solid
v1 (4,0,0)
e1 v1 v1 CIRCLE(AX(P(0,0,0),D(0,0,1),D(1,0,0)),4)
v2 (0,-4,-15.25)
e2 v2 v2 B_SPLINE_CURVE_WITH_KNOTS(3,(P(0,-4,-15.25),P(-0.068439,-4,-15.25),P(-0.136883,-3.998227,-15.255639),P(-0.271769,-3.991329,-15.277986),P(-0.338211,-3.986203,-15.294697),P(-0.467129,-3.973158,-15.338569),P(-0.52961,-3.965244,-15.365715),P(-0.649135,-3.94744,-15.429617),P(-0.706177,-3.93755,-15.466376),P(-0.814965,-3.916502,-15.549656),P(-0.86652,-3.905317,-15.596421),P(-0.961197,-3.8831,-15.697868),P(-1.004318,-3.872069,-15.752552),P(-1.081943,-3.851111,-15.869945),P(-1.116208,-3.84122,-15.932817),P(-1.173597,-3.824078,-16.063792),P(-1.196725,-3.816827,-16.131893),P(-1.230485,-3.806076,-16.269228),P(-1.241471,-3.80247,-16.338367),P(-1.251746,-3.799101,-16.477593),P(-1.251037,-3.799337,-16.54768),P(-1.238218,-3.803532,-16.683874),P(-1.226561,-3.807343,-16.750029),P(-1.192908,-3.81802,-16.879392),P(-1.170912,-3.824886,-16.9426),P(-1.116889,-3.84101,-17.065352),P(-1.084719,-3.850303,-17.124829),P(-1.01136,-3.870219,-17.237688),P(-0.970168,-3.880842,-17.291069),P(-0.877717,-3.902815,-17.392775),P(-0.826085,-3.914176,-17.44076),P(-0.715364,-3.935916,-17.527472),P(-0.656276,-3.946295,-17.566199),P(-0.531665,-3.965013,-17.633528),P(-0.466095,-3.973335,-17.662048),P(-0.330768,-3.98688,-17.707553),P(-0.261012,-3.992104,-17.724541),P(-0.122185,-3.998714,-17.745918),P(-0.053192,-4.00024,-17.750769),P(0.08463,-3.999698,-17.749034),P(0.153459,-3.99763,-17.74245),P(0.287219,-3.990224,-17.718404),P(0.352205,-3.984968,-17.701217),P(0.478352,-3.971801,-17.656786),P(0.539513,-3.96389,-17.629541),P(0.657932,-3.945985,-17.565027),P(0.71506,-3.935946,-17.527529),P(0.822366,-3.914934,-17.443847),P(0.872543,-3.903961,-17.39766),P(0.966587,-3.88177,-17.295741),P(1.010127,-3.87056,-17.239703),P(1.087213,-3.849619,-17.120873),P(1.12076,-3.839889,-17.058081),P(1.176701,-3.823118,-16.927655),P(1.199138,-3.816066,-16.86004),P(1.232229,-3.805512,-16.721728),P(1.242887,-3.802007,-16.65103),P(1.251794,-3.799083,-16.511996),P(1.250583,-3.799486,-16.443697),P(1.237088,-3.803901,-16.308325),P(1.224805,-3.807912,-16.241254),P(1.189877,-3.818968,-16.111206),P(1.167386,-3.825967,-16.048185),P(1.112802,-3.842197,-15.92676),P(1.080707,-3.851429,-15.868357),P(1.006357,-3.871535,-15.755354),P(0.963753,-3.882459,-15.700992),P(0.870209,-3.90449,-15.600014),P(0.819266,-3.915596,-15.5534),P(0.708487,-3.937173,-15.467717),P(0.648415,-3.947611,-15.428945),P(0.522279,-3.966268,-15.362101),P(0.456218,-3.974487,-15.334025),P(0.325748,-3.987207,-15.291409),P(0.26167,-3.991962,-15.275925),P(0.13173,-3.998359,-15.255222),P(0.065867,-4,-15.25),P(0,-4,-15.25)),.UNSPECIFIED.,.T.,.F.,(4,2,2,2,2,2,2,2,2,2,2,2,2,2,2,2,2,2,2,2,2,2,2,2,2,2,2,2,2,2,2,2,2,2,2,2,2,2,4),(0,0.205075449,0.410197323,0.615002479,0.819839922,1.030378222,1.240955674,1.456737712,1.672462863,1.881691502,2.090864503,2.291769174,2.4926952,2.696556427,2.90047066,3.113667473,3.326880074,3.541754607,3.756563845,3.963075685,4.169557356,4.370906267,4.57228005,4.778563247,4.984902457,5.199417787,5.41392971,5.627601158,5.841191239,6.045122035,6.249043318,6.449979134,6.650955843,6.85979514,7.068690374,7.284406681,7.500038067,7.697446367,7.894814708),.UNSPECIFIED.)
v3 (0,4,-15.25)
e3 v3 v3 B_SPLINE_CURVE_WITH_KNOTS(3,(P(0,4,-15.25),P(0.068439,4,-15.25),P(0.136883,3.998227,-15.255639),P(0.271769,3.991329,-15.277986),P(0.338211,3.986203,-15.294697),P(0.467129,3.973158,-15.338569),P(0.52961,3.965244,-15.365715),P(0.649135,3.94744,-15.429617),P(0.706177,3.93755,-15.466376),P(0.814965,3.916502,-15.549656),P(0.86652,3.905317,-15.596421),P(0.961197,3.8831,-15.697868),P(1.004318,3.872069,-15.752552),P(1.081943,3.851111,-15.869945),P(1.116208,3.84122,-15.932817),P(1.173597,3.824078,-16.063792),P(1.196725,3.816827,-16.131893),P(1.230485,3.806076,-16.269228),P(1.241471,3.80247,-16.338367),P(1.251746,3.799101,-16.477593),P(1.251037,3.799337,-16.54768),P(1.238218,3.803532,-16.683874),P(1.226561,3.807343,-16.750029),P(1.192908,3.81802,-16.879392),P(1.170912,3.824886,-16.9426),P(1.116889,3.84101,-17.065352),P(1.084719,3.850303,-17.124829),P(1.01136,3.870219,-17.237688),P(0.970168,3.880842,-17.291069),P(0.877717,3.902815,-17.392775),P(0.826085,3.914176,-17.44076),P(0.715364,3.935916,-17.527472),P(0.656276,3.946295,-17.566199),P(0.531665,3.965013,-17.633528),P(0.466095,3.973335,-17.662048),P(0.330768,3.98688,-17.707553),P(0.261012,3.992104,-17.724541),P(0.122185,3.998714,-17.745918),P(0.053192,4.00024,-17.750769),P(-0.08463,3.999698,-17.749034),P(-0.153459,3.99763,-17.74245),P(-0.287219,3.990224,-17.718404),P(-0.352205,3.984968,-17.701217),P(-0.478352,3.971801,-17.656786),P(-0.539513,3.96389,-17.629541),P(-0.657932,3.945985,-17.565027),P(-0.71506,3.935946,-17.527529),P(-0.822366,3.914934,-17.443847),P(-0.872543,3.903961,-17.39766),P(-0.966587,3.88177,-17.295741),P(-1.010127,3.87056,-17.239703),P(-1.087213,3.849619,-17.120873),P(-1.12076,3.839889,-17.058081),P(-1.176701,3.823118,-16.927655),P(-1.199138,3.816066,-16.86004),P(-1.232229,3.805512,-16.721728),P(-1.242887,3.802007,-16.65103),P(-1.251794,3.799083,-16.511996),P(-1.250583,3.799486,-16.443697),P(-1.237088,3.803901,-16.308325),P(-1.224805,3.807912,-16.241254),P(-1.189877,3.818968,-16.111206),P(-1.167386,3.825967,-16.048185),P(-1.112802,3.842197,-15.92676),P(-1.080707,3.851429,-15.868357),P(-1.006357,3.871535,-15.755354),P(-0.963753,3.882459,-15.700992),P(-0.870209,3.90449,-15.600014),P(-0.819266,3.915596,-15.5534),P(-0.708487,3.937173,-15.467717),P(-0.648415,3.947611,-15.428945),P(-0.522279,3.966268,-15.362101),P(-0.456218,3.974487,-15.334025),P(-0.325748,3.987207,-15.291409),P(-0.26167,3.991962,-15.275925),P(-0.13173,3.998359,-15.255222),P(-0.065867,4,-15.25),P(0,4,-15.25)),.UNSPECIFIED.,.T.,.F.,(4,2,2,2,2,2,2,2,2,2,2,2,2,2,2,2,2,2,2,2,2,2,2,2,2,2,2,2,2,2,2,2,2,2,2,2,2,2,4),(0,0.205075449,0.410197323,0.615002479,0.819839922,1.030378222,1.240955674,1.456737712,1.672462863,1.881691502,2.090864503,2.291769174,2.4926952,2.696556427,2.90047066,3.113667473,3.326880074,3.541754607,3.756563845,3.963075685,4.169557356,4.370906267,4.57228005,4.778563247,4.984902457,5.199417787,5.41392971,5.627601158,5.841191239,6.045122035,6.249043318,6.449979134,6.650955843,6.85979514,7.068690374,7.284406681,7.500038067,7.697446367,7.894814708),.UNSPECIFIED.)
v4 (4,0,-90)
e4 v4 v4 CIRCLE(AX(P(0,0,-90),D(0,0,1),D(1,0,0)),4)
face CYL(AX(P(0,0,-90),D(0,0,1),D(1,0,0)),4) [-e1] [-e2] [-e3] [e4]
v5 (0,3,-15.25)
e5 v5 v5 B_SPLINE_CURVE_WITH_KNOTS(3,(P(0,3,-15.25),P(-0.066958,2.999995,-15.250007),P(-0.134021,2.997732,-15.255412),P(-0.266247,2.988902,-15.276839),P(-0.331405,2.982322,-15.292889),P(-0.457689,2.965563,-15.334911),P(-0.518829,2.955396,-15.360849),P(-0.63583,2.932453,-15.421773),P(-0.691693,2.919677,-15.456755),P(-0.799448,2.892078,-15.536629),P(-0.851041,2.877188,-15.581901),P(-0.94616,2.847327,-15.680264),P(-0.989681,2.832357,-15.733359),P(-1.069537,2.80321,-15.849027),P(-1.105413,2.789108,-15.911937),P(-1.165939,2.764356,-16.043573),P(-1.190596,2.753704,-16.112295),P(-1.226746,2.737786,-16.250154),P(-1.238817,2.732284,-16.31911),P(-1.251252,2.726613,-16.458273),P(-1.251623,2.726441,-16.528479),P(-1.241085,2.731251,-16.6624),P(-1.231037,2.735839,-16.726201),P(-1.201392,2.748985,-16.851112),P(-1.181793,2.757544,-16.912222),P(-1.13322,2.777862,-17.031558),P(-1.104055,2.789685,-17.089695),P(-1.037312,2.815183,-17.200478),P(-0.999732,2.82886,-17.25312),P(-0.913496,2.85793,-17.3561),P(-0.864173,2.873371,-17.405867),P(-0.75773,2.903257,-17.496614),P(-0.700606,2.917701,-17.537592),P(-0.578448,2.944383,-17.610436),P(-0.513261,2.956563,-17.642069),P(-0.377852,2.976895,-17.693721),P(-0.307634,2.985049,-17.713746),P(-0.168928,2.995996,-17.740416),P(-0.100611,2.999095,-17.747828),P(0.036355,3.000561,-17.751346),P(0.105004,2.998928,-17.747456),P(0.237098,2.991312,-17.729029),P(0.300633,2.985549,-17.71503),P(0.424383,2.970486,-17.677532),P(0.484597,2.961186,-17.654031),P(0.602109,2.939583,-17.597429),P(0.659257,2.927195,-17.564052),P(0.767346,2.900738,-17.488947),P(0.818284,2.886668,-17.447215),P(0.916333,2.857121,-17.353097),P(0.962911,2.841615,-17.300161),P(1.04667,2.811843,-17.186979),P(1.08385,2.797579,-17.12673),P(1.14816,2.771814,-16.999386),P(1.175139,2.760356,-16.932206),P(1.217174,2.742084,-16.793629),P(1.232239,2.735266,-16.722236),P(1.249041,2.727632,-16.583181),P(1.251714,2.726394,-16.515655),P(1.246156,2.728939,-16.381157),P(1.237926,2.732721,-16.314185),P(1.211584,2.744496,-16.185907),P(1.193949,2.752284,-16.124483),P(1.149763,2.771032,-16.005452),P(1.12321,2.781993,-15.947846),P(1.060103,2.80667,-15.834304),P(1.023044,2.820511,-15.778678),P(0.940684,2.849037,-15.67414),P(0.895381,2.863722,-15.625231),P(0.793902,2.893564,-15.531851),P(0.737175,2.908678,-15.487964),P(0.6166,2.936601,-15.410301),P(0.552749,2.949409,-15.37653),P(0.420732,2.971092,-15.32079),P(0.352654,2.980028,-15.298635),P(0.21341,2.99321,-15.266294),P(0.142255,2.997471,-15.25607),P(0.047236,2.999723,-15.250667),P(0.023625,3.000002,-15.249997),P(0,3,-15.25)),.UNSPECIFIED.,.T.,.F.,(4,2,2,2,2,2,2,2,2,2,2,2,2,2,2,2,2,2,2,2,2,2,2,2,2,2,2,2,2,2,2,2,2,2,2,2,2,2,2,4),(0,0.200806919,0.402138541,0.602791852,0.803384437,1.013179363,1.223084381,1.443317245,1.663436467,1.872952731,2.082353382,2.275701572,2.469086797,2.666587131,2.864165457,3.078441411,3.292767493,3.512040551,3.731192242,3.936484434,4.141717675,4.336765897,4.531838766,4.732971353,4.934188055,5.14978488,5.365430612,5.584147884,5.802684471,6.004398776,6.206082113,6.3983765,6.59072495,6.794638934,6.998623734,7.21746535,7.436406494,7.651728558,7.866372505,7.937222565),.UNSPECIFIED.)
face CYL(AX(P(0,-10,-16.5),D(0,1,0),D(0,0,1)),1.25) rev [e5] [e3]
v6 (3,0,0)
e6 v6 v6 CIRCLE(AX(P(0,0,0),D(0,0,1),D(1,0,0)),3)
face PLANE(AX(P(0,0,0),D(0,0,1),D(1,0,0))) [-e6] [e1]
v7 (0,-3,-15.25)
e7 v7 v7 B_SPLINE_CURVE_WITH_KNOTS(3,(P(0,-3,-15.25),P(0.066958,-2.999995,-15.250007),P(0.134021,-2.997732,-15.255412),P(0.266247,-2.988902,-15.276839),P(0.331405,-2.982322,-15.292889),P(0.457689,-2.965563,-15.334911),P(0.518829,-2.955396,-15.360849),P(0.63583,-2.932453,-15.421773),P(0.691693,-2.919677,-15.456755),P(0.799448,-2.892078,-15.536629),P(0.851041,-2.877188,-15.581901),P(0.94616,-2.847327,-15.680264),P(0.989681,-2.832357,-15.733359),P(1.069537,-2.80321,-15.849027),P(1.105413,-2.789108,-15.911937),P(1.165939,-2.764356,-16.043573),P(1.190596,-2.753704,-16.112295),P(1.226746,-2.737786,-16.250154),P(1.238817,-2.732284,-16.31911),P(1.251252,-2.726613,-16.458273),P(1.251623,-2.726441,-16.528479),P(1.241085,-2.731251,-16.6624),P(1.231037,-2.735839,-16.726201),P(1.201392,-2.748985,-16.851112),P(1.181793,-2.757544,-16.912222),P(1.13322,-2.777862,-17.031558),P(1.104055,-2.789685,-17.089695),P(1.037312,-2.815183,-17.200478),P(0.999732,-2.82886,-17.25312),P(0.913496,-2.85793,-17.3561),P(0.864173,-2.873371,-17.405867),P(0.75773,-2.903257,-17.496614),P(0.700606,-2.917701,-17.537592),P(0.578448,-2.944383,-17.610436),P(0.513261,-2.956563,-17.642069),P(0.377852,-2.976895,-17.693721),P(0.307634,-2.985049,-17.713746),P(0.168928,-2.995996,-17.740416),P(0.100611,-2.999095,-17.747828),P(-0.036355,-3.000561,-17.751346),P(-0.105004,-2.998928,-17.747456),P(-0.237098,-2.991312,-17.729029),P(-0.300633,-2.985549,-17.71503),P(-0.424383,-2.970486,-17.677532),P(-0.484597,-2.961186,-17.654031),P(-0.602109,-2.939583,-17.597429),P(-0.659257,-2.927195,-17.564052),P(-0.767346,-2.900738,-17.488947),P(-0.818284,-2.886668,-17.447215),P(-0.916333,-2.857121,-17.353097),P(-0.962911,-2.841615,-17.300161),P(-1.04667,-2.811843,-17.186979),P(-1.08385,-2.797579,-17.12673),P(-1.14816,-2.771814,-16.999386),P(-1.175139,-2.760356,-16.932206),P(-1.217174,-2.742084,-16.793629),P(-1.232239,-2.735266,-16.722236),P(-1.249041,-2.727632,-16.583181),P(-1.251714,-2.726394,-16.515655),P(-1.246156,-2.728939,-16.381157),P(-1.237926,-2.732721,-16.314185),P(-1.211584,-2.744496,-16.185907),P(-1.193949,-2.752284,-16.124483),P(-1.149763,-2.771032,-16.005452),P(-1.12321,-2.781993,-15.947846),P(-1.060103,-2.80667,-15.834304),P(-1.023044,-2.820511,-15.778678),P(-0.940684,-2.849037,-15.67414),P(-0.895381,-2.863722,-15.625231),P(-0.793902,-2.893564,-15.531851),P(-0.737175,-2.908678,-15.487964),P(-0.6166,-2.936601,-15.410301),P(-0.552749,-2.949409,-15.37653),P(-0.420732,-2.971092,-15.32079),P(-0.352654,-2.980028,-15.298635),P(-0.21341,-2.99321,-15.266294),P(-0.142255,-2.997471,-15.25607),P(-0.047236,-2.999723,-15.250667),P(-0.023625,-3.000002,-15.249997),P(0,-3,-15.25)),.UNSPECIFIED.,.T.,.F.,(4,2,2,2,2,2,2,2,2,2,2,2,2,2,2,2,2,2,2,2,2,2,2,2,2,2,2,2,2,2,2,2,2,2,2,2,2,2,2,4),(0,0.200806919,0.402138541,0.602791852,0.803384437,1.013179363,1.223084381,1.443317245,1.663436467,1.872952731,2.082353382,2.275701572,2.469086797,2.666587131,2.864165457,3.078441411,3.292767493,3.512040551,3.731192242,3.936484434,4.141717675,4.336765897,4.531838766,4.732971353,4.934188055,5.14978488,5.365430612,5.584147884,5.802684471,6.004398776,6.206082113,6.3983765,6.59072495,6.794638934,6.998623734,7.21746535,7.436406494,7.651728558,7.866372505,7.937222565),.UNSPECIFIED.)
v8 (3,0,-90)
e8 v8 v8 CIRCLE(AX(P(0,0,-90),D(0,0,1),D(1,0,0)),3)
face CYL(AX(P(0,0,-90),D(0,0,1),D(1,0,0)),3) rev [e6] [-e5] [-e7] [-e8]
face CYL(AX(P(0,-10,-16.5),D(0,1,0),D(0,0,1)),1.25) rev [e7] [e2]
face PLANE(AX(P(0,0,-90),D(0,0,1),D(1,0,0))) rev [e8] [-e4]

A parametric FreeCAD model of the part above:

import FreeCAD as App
import Part
import Sketcher
from FreeCAD import Vector

doc = App.newDocument("Part")
params = doc.addObject("Spreadsheet::Sheet", "Params")
for row, (alias, value) in enumerate([
    ("sketch1_diameter", "8 mm"),
    ("pad1_length", "90 mm"),
    ("sketch2_diameter", "2.5 mm"),
    ("pocket1_length", "20 mm"),
    ("sketch3_diameter", "2.5 mm"),
    ("hole_diameter", "2.5 mm"),
    ("hole_depth", "12.5 mm"),
    ("sketch4_diameter", "6 mm"),
], start=1):
    params.set(f"A{row}", alias)
    params.set(f"B{row}", "=" + value)
    params.setAlias(f"B{row}", alias)

body = doc.addObject("PartDesign::Body", "Body")

# Sketch on XY plane
sketch1 = body.newObject("Sketcher::SketchObject", "Sketch")
sketch1.AttachmentSupport = (doc.getObject("XY_Plane"), [""])
sketch1.MapMode = "FlatFace"
sketch1.addGeometry(Part.Circle(Vector(0, 0, 0), Vector(0, 0, 1), 4), False)
sketch1.addConstraint(Sketcher.Constraint("Coincident", 0, 3, -1, 1))
sketch1.addConstraint(Sketcher.Constraint("Diameter", 0, 8.0))
sketch1.setExpression("Constraints[1]", "Params.sketch1_diameter")
pad1 = body.newObject("PartDesign::Pad", "Pad")
pad1.Profile = sketch1
pad1.setExpression("Length", "Params.pad1_length")
pad1.Reversed = True

# Sketch on XZ plane
sketch2 = body.newObject("Sketcher::SketchObject", "Sketch001")
sketch2.AttachmentSupport = (doc.getObject("XZ_Plane"), [""])
sketch2.MapMode = "FlatFace"
sketch2.addGeometry(Part.Circle(Vector(0, -16.5, 0), Vector(0, 0, 1), 1.2), False)
sketch2.addConstraint(Sketcher.Constraint("PointOnObject", 0, 3, -2))
sketch2.addConstraint(Sketcher.Constraint("Diameter", 0, 2.5))
sketch2.addConstraint(Sketcher.Constraint("DistanceY", 0, 3, -1, 1, 16.5))
sketch2.setExpression("Constraints[1]", "Params.sketch2_diameter")
pocket1 = body.newObject("PartDesign::Pocket", "Pocket")
pocket1.Profile = sketch2
pocket1.setExpression("Length", "Params.pocket1_length")
pocket1.Midplane = True

# Sketch on XY plane
sketch3 = body.newObject("Sketcher::SketchObject", "Sketch002")
sketch3.AttachmentSupport = (doc.getObject("XY_Plane"), [""])
sketch3.MapMode = "FlatFace"
sketch3.AttachmentOffset = App.Placement(Vector(0, 0, -90), App.Rotation())
sketch3.addGeometry(Part.Circle(Vector(0, 0, 0), Vector(0, 0, 1), 1.2), False)
sketch3.addConstraint(Sketcher.Constraint("Coincident", 0, 3, -1, 1))
sketch3.addConstraint(Sketcher.Constraint("Diameter", 0, 2.5))
sketch3.setExpression("Constraints[1]", "Params.sketch3_diameter")
doc.recompute()
hole = body.newObject("PartDesign::Hole", "Hole")
hole.Profile = sketch3
hole.ThreadType = "None"
hole.setExpression("Diameter", "Params.hole_diameter")
hole.DepthType = "Dimension"
hole.setExpression("Depth", "Params.hole_depth")
hole.DrillPoint = "Angled"
hole.DrillPointAngle = 118
hole.Reversed = True

# Sketch on XY plane
sketch4 = body.newObject("Sketcher::SketchObject", "Sketch003")
sketch4.AttachmentSupport = (doc.getObject("XY_Plane"), [""])
sketch4.MapMode = "FlatFace"
sketch4.addGeometry(Part.Circle(Vector(0, 0, 0), Vector(0, 0, 1), 3), False)
sketch4.addConstraint(Sketcher.Constraint("Coincident", 0, 3, -1, 1))
sketch4.addConstraint(Sketcher.Constraint("Diameter", 0, 6.0))
sketch4.setExpression("Constraints[1]", "Params.sketch4_diameter")
pocket2 = body.newObject("PartDesign::Pocket", "Pocket001")
pocket2.Profile = sketch4
pocket2.Type = "ThroughAll"

doc.recompute()
